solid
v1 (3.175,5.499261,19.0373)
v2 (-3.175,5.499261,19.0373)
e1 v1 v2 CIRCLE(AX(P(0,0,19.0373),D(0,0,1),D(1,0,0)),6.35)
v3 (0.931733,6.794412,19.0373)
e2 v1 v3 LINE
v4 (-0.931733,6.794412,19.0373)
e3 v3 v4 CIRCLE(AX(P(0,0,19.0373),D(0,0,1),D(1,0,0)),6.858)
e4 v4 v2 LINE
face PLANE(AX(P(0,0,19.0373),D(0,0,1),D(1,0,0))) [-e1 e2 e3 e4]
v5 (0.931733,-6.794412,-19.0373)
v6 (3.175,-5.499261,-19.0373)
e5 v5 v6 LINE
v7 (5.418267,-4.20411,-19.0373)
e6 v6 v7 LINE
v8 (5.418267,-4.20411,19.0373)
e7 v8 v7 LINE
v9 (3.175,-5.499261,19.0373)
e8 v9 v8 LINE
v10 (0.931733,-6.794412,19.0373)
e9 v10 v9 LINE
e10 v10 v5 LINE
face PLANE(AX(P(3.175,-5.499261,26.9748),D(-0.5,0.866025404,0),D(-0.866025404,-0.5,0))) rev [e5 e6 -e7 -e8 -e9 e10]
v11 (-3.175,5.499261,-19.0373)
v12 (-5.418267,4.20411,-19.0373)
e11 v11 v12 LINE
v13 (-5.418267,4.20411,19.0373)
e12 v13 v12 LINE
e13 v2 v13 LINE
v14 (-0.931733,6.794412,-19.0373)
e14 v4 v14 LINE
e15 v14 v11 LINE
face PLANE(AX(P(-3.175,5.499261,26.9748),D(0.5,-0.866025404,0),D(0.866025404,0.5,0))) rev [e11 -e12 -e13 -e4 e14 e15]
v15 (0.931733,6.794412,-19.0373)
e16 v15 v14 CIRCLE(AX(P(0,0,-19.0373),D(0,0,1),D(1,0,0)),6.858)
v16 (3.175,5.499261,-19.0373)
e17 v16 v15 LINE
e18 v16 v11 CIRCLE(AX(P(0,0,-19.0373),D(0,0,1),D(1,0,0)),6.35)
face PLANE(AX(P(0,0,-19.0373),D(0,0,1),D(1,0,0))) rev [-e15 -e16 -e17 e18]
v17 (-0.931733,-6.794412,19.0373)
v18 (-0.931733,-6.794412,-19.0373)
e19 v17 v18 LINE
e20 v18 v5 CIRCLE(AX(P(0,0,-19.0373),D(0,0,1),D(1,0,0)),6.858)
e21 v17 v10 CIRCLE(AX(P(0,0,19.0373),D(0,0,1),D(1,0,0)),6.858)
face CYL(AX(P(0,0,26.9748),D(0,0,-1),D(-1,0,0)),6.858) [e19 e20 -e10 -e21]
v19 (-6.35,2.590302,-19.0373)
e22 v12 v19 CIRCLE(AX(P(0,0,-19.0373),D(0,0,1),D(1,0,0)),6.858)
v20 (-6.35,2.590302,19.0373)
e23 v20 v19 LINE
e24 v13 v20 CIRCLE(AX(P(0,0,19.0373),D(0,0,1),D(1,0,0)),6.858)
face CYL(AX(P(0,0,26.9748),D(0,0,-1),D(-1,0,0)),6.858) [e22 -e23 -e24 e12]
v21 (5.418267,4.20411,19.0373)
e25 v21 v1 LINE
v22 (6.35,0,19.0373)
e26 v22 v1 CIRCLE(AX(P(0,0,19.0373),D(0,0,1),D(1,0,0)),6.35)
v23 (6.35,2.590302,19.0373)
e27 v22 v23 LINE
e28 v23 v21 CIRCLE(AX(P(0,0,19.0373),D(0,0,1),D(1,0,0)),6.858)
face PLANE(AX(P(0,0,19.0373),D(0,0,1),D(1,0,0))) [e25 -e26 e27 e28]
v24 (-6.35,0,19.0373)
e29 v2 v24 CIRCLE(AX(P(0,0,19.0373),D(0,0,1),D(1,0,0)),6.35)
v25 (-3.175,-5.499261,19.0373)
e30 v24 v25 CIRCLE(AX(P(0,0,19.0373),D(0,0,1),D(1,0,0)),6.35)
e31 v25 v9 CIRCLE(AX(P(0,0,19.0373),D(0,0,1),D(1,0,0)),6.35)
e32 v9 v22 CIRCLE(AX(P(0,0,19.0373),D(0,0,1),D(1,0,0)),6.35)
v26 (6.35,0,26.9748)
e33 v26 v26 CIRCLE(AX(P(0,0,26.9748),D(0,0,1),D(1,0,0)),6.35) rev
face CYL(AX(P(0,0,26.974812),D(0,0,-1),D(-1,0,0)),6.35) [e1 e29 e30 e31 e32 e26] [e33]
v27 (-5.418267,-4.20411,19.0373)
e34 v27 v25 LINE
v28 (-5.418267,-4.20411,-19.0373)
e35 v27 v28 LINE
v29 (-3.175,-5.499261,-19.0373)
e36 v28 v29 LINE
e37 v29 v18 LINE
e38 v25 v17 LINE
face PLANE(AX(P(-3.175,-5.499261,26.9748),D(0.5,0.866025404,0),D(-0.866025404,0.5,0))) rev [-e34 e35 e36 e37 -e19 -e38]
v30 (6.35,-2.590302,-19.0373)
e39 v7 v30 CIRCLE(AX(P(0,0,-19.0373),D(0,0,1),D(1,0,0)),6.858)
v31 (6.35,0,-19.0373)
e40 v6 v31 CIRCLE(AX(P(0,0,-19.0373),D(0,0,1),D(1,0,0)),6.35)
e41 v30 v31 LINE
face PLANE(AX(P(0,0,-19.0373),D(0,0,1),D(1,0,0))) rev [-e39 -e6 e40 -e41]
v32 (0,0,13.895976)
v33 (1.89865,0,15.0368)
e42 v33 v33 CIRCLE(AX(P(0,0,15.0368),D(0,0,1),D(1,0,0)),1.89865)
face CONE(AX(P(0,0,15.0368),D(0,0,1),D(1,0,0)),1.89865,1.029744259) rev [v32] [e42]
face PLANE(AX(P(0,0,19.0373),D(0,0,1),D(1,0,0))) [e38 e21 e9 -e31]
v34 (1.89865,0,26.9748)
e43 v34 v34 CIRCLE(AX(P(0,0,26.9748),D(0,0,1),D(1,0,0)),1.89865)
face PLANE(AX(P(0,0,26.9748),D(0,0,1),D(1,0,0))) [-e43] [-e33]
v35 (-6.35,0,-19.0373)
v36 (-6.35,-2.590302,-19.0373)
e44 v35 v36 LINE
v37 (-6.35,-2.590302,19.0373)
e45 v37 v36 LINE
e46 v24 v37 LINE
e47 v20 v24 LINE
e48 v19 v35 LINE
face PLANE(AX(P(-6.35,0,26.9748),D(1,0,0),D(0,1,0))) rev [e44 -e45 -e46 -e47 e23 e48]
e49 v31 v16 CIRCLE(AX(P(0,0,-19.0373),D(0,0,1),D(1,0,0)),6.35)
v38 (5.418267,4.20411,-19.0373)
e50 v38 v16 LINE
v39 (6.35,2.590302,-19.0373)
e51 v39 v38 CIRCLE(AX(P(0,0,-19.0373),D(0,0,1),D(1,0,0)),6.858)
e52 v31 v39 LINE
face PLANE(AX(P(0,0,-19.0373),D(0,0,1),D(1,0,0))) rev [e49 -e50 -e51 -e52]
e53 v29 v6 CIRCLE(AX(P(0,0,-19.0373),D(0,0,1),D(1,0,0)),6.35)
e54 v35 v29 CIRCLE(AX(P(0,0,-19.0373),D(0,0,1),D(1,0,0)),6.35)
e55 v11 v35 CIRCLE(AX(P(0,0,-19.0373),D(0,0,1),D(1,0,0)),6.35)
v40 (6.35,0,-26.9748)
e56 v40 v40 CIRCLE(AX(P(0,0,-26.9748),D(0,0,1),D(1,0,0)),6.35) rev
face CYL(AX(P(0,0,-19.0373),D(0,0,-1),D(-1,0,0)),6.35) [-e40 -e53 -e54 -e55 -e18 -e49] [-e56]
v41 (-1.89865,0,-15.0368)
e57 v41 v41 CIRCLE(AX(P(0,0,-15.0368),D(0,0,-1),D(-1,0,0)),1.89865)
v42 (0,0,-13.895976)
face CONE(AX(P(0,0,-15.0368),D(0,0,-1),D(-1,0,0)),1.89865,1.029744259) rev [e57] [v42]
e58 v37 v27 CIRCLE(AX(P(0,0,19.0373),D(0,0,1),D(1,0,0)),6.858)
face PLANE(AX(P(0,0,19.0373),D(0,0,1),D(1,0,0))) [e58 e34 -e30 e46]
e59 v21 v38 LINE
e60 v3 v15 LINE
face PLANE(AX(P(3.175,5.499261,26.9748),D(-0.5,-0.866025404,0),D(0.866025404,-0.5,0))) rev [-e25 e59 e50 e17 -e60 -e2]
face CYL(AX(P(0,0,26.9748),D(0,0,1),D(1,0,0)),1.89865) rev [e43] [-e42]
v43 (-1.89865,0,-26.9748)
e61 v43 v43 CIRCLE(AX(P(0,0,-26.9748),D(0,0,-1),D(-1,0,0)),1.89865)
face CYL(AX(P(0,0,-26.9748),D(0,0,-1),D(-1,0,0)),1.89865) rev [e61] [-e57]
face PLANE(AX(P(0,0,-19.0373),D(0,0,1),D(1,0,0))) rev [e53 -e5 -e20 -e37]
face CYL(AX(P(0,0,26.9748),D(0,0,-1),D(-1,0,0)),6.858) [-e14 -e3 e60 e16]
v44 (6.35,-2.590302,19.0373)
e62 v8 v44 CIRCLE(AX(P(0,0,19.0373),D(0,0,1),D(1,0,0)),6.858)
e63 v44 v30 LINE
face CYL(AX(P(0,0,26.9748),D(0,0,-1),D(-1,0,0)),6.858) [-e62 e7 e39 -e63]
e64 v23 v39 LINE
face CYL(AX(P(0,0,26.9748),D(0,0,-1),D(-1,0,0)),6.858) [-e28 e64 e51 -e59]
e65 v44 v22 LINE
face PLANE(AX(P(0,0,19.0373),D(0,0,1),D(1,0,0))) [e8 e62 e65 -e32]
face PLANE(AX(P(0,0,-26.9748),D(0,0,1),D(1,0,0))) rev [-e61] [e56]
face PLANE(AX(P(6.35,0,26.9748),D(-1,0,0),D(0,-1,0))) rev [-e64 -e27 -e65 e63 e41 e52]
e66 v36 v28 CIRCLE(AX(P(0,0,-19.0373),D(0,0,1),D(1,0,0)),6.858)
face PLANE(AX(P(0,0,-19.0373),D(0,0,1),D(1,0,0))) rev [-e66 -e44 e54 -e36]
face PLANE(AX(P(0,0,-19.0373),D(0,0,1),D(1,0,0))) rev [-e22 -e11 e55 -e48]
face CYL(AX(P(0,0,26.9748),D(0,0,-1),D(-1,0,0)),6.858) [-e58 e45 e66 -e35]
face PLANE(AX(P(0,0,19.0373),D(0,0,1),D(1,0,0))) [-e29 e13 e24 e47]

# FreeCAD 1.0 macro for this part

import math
import FreeCAD as App
import Part
import Sketcher
Q = App.Units.Quantity

doc = App.newDocument("Part")
body = doc.addObject("PartDesign::Body", "Body")

# Sketch on XY plane
sketch1 = body.newObject("Sketcher::SketchObject", "Sketch")
sketch1.AttachmentSupport = (doc.getObject("XY_Plane"), [""])
sketch1.MapMode = "FlatFace"
sketch1.addGeometry(Part.ArcOfCircle(Part.Circle(App.Vector(0, 0, 0), App.Vector(0, 0, 1), 6.9), math.radians(82.19), math.radians(97.81)), False)
sketch1.addGeometry(Part.LineSegment(App.Vector(-0.9, 6.8, 0), App.Vector(-5.4, 4.2, 0)), False)
sketch1.addGeometry(Part.ArcOfCircle(Part.Circle(App.Vector(0, 0, 0), App.Vector(0, 0, 1), 6.9), math.radians(142.19), math.radians(157.81)), False)
sketch1.addGeometry(Part.LineSegment(App.Vector(-6.3, 2.6, 0), App.Vector(-6.3, -2.6, 0)), False)
sketch1.addGeometry(Part.ArcOfCircle(Part.Circle(App.Vector(0, 0, 0), App.Vector(0, 0, 1), 6.9), math.radians(-157.81), math.radians(-142.19)), False)
sketch1.addGeometry(Part.LineSegment(App.Vector(-5.4, -4.2, 0), App.Vector(-0.9, -6.8, 0)), False)
sketch1.addGeometry(Part.ArcOfCircle(Part.Circle(App.Vector(0, 0, 0), App.Vector(0, 0, 1), 6.9), math.radians(-97.81), math.radians(-82.19)), False)
sketch1.addGeometry(Part.LineSegment(App.Vector(0.9, -6.8, 0), App.Vector(5.4, -4.2, 0)), False)
sketch1.addGeometry(Part.ArcOfCircle(Part.Circle(App.Vector(0, 0, 0), App.Vector(0, 0, 1), 6.9), math.radians(-37.81), math.radians(-22.19)), False)
sketch1.addGeometry(Part.LineSegment(App.Vector(6.3, -2.6, 0), App.Vector(6.3, 2.6, 0)), False)
sketch1.addGeometry(Part.ArcOfCircle(Part.Circle(App.Vector(0, 0, 0), App.Vector(0, 0, 1), 6.9), math.radians(22.19), math.radians(37.81)), False)
sketch1.addGeometry(Part.LineSegment(App.Vector(5.4, 4.2, 0), App.Vector(0.9, 6.8, 0)), False)
sketch1.addConstraint(Sketcher.Constraint("Coincident", 0, 2, 1, 1))
sketch1.addConstraint(Sketcher.Constraint("Coincident", 1, 2, 2, 1))
sketch1.addConstraint(Sketcher.Constraint("Coincident", 2, 2, 3, 1))
sketch1.addConstraint(Sketcher.Constraint("Coincident", 3, 2, 4, 1))
sketch1.addConstraint(Sketcher.Constraint("Coincident", 4, 2, 5, 1))
sketch1.addConstraint(Sketcher.Constraint("Coincident", 5, 2, 6, 1))
sketch1.addConstraint(Sketcher.Constraint("Coincident", 6, 2, 7, 1))
sketch1.addConstraint(Sketcher.Constraint("Coincident", 7, 2, 8, 1))
sketch1.addConstraint(Sketcher.Constraint("Coincident", 8, 2, 9, 1))
sketch1.addConstraint(Sketcher.Constraint("Coincident", 9, 2, 10, 1))
sketch1.addConstraint(Sketcher.Constraint("Coincident", 10, 2, 11, 1))
sketch1.addConstraint(Sketcher.Constraint("Coincident", 11, 2, 0, 1))
sketch1.addConstraint(Sketcher.Constraint("Vertical", 3))
sketch1.addConstraint(Sketcher.Constraint("Vertical", 9))
sketch1.addConstraint(Sketcher.Constraint("Coincident", 0, 3, -1, 1))
sketch1.addConstraint(Sketcher.Constraint("Coincident", 2, 3, -1, 1))
sketch1.addConstraint(Sketcher.Constraint("Coincident", 4, 3, -1, 1))
sketch1.addConstraint(Sketcher.Constraint("Coincident", 6, 3, -1, 1))
sketch1.addConstraint(Sketcher.Constraint("Coincident", 8, 3, -1, 1))
sketch1.addConstraint(Sketcher.Constraint("Coincident", 10, 3, -1, 1))
sketch1.addConstraint(Sketcher.Constraint("Equal", 0, 2))
sketch1.addConstraint(Sketcher.Constraint("Equal", 2, 4))
sketch1.addConstraint(Sketcher.Constraint("Equal", 4, 6))
sketch1.addConstraint(Sketcher.Constraint("Equal", 6, 8))
sketch1.addConstraint(Sketcher.Constraint("Equal", 8, 10))
sketch1.addConstraint(Sketcher.Constraint("Parallel", 1, 7))
sketch1.addConstraint(Sketcher.Constraint("Parallel", 5, 11))
sketch1.addConstraint(Sketcher.Constraint("Horizontal", 5, 2, 6, 2))
sketch1.addConstraint(Sketcher.Constraint("Horizontal", 4, 2, 7, 2))
sketch1.addConstraint(Sketcher.Constraint("Horizontal", 3, 2, 8, 2))
sketch1.addConstraint(Sketcher.Constraint("Horizontal", 1, 2, 10, 2))
sketch1.addConstraint(Sketcher.Constraint("Vertical", 1, 2, 4, 2))
sketch1.addConstraint(Sketcher.Constraint("Radius", 0, Q("0.27 in")))
sketch1.addConstraint(Sketcher.Constraint("Angle", 1, Q("-150 deg")))
sketch1.addConstraint(Sketcher.Constraint("DistanceX", 2, 2, -1, 1, Q("0.25 in")))
sketch1.addConstraint(Sketcher.Constraint("DistanceX", 4, 2, 6, 2, Q("0.25 in")))
pad1 = body.newObject("PartDesign::Pad", "Pad")
pad1.Profile = sketch1
pad1.Length = Q("2.124 in")
pad1.Midplane = True

# Sketch on XY plane
sketch2 = body.newObject("Sketcher::SketchObject", "Sketch001")
sketch2.AttachmentSupport = (doc.getObject("XY_Plane"), [""])
sketch2.MapMode = "FlatFace"
sketch2.AttachmentOffset = App.Placement(App.Vector(0, 0, 1.062 * 25.4), App.Rotation())
sketch2.addGeometry(Part.Circle(App.Vector(0, 0, 0), App.Vector(0, 0, 1), 9), False)
sketch2.addGeometry(Part.Circle(App.Vector(0, 0, 0), App.Vector(0, 0, 1), 6), False)
sketch2.addConstraint(Sketcher.Constraint("Coincident", 0, 3, -1, 1))
sketch2.addConstraint(Sketcher.Constraint("Coincident", 1, 3, -1, 1))
sketch2.addConstraint(Sketcher.Constraint("Diameter", 0, Q("0.7 in")))
sketch2.addConstraint(Sketcher.Constraint("Diameter", 1, Q("0.5 in")))
pocket1 = body.newObject("PartDesign::Pocket", "Pocket")
pocket1.Profile = sketch2
pocket1.Type = "TwoLengths"
pocket1.Length = 29.548109
pocket1.Length2 = Q("0.3125 in")
pocket1.Reversed = True

# Sketch on XY plane
sketch3 = body.newObject("Sketcher::SketchObject", "Sketch002")
sketch3.AttachmentSupport = (doc.getObject("XY_Plane"), [""])
sketch3.MapMode = "FlatFace"
sketch3.AttachmentOffset = App.Placement(App.Vector(0, 0, -1.062 * 25.4), App.Rotation())
sketch3.addGeometry(Part.Circle(App.Vector(0, 0, 0), App.Vector(0, 0, 1), 9), False)
sketch3.addGeometry(Part.Circle(App.Vector(0, 0, 0), App.Vector(0, 0, 1), 6), False)
sketch3.addConstraint(Sketcher.Constraint("Coincident", 0, 3, -1, 1))
sketch3.addConstraint(Sketcher.Constraint("Coincident", 1, 3, -1, 1))
sketch3.addConstraint(Sketcher.Constraint("Diameter", 0, Q("0.7 in")))
sketch3.addConstraint(Sketcher.Constraint("Diameter", 1, Q("0.5 in")))
pocket2 = body.newObject("PartDesign::Pocket", "Pocket001")
pocket2.Profile = sketch3
pocket2.Length = Q("0.3125 in")
pocket2.Reversed = True

# Sketch on XY plane
sketch4 = body.newObject("Sketcher::SketchObject", "Sketch003")
sketch4.AttachmentSupport = (doc.getObject("XY_Plane"), [""])
sketch4.MapMode = "FlatFace"
sketch4.AttachmentOffset = App.Placement(App.Vector(0, 0, 1.062 * 25.4), App.Rotation())
sketch4.addGeometry(Part.Circle(App.Vector(0, 0, 0), App.Vector(0, 0, 1), 1.9), False)
sketch4.addConstraint(Sketcher.Constraint("Coincident", 0, 3, -1, 1))
sketch4.addConstraint(Sketcher.Constraint("Diameter", 0, Q("0.1495 in")))
doc.recompute()
hole = body.newObject("PartDesign::Hole", "Hole")
hole.Profile = sketch4
hole.ThreadType = "None"
hole.Diameter = Q("0.1495 in")
hole.DepthType = "Dimension"
hole.Depth = Q("0.47 in")
hole.DrillPoint = "Angled"
hole.DrillPointAngle = 118

# Sketch on XY plane
sketch5 = body.newObject("Sketcher::SketchObject", "Sketch004")
sketch5.AttachmentSupport = (doc.getObject("XY_Plane"), [""])
sketch5.MapMode = "FlatFace"
sketch5.AttachmentOffset = App.Placement(App.Vector(0, 0, -1.062 * 25.4), App.Rotation())
sketch5.addGeometry(Part.Circle(App.Vector(0, 0, 0), App.Vector(0, 0, 1), 1.9), False)
sketch5.addConstraint(Sketcher.Constraint("Coincident", 0, 3, -1, 1))
sketch5.addConstraint(Sketcher.Constraint("Diameter", 0, Q("0.1495 in")))
doc.recompute()
hole2 = body.newObject("PartDesign::Hole", "Hole001")
hole2.Profile = sketch5
hole2.ThreadType = "None"
hole2.Diameter = Q("0.1495 in")
hole2.DepthType = "Dimension"
hole2.Depth = Q("0.47 in")
hole2.DrillPoint = "Angled"
hole2.DrillPointAngle = 118
hole2.Reversed = True

doc.recompute()
